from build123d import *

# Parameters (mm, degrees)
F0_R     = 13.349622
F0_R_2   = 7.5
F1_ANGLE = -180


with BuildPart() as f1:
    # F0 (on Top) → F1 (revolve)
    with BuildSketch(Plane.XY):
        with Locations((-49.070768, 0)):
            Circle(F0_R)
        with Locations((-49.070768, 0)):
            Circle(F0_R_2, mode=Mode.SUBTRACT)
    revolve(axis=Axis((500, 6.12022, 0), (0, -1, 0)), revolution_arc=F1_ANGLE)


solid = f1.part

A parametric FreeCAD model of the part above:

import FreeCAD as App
import Part
import Sketcher

V = App.Vector
Q = App.Units.Quantity

doc = App.newDocument("Part")
body = doc.addObject("PartDesign::Body", "Body")

sketch1 = body.newObject("Sketcher::SketchObject", "Sketch")
sketch1.AttachmentSupport = (doc.getObject("XY_Plane"), [""])
sketch1.MapMode = "FlatFace"
sketch1.addGeometry([
    Part.Circle(V(-49.070768, 0, 0), V(0, 0, 1), 13.349622),
    Part.Circle(V(-49.070768, 0, 0), V(0, 0, 1), 7.5),
], False)
sketch1.addGeometry(Part.LineSegment(V(500, 0, 0), V(500, -10, 0)), True)
sketch1.addConstraint([
    Sketcher.Constraint("Vertical", 2),
    Sketcher.Constraint("Coincident", 1, 3, 0, 3),
    Sketcher.Constraint("PointOnObject", 0, 3, -1),
    Sketcher.Constraint("PointOnObject", 2, 1, -1),
    Sketcher.Constraint("Diameter", 1, Q("15 mm")),
    Sketcher.Constraint("DistanceY", 2, 2, 2, 1, Q("10 mm")),
    Sketcher.Constraint("DistanceX", -1, 1, 2, 1, Q("500 mm")),
    Sketcher.Constraint("Diameter", 0, Q("26.699244 mm")),
    Sketcher.Constraint("DistanceX", 0, 3, 2, 1, Q("549.070768 mm")),
])
revolution = body.newObject("PartDesign::Revolution", "Revolution")
revolution.Profile = sketch1
revolution.ReferenceAxis = (sketch1, ["Axis0"])
revolution.Angle = 180
revolution.Reversed = True

doc.recompute()
